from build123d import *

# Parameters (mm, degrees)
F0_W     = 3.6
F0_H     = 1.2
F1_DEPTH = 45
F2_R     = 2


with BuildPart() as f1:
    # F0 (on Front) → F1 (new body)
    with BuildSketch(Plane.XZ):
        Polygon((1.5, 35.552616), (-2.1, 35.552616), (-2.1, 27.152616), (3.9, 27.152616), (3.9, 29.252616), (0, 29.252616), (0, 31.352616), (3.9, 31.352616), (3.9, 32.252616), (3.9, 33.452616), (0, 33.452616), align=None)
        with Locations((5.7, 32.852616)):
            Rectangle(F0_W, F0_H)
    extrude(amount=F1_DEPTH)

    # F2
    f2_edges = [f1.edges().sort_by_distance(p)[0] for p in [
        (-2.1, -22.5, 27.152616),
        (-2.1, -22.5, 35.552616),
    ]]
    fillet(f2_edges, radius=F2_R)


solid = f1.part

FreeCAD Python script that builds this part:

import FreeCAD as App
import Part
import Sketcher

V = App.Vector


def edges_at(feature, points):
    """Names of the edges that pass closest to the given points."""
    edges = feature.Shape.Edges
    near = lambda p: min(range(len(edges)), key=lambda i: edges[i].distToShape(Part.Vertex(*p))[0])
    return sorted({f"Edge{near(p) + 1}" for p in points})


def add_polygon(sketch, points):
    """Adds a closed chain of lines whose ends are joined by coincident constraints."""
    first, n = sketch.GeometryCount, len(points)
    for a, b in zip(points, points[1:] + points[:1]):
        sketch.addGeometry(Part.LineSegment(App.Vector(*a, 0), App.Vector(*b, 0)), False)
    for i in range(n):
        sketch.addConstraint(Sketcher.Constraint("Coincident", first + i, 2, first + (i + 1) % n, 1))

doc = App.newDocument("Part")
body = doc.addObject("PartDesign::Body", "Body")

# Sketch on XZ plane
sketch1 = body.newObject("Sketcher::SketchObject", "Sketch")
sketch1.AttachmentSupport = (doc.getObject("XZ_Plane"), [""])
sketch1.MapMode = "FlatFace"
add_polygon(sketch1, [(1.5, 35.6), (-2.1, 35.6), (-2.1, 27.2), (3.9, 27.2), (3.9, 29.3), (0, 29.3), (0, 31.4), (3.9, 31.4), (3.9, 32.3), (7.5, 32.3), (7.5, 33.5), (0, 33.5)])  # lines 0-11
sketch1.addConstraint(Sketcher.Constraint("Horizontal", 0))
sketch1.addConstraint(Sketcher.Constraint("Vertical", 1))
sketch1.addConstraint(Sketcher.Constraint("Horizontal", 2))
sketch1.addConstraint(Sketcher.Constraint("Vertical", 3))
sketch1.addConstraint(Sketcher.Constraint("Horizontal", 4))
sketch1.addConstraint(Sketcher.Constraint("Vertical", 5))
sketch1.addConstraint(Sketcher.Constraint("Horizontal", 6))
sketch1.addConstraint(Sketcher.Constraint("Vertical", 7))
sketch1.addConstraint(Sketcher.Constraint("Horizontal", 8))
sketch1.addConstraint(Sketcher.Constraint("Vertical", 9))
sketch1.addConstraint(Sketcher.Constraint("Horizontal", 10))
sketch1.addConstraint(Sketcher.Constraint("PointOnObject", 4, 2, -2))
sketch1.addConstraint(Sketcher.Constraint("PointOnObject", 10, 2, -2))
sketch1.addConstraint(Sketcher.Constraint("Vertical", 3, 2, 6, 2))
sketch1.addConstraint(Sketcher.Constraint("Equal", 0, 8))
sketch1.addConstraint(Sketcher.Constraint("Equal", 3, 5))
sketch1.addConstraint(Sketcher.Constraint("DistanceX", 2, 1, 2, 2, 6.0))
sketch1.addConstraint(Sketcher.Constraint("DistanceX", 0, 2, 0, 1, 3.6))
sketch1.addConstraint(Sketcher.Constraint("DistanceX", 4, 2, 4, 1, 3.9))
sketch1.addConstraint(Sketcher.Constraint("DistanceY", 1, 2, 1, 1, 8.4))
sketch1.addConstraint(Sketcher.Constraint("DistanceY", 3, 1, 3, 2, 2.1))
sketch1.addConstraint(Sketcher.Constraint("DistanceY", 7, 1, 7, 2, 0.9))
sketch1.addConstraint(Sketcher.Constraint("DistanceY", 9, 1, 9, 2, 1.2))
sketch1.addConstraint(Sketcher.Constraint("DistanceY", -1, 1, 0, 2, 35.552616))
pad1 = body.newObject("PartDesign::Pad", "Pad")
pad1.Profile = sketch1
pad1.Length = 45
doc.recompute()

fillet = body.newObject("PartDesign::Fillet", "Fillet")
fillet.Base = (pad1, edges_at(pad1, [(-2.1, -22.5, 27.153), (-2.1, -22.5, 35.553)]))
fillet.Radius = 2

doc.recompute()
